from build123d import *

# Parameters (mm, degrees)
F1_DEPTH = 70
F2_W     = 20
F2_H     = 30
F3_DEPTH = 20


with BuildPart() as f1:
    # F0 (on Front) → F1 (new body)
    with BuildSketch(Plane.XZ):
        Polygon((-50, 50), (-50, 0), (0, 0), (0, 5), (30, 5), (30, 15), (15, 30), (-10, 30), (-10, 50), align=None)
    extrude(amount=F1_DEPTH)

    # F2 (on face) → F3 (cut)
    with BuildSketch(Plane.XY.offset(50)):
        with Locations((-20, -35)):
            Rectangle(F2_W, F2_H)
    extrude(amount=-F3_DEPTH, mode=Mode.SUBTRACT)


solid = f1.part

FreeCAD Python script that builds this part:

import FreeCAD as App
import Part
import Sketcher

V = App.Vector
Q = App.Units.Quantity

doc = App.newDocument("Part")
params = doc.addObject("Spreadsheet::Sheet", "Params")
for row, (alias, value) in enumerate([
    ("sketch1_width", "50 mm"),
    ("sketch1_width2", "30 mm"),
    ("sketch1_width3", "25 mm"),
    ("sketch1_width4", "40 mm"),
    ("sketch1_height", "5 mm"),
    ("pad1_length", "70 mm"),
    ("sketch2_width", "20 mm"),
    ("sketch2_height", "30 mm"),
    ("pocket1_length", "20 mm"),
], start=1):
    params.set(f"A{row}", alias)
    params.set(f"B{row}", "=" + value)
    params.setAlias(f"B{row}", alias)

body = doc.addObject("PartDesign::Body", "Body")

# Sketch on XZ plane
sketch1 = doc.addObject("Sketcher::SketchObject", "Sketch")
body.addObject(sketch1)
sketch1.AttachmentSupport = (doc.XZ_Plane, [""])
sketch1.MapMode = "FlatFace"
sketch1.addGeometry([
    Part.LineSegment(V(-50, 50, 0), V(-50, 0, 0)),  # 0
    Part.LineSegment(V(-50, 0, 0), V(0, 0, 0)),  # 1
    Part.LineSegment(V(0, 0, 0), V(0, 5, 0)),  # 2
    Part.LineSegment(V(0, 5, 0), V(30, 5, 0)),  # 3
    Part.LineSegment(V(30, 5, 0), V(30, 15, 0)),  # 4
    Part.LineSegment(V(30, 15, 0), V(15, 30, 0)),  # 5
    Part.LineSegment(V(15, 30, 0), V(-10, 30, 0)),  # 6
    Part.LineSegment(V(-10, 30, 0), V(-10, 50, 0)),  # 7
    Part.LineSegment(V(-10, 50, 0), V(-50, 50, 0)),  # 8
], False)
sketch1.addConstraint([
    Sketcher.Constraint("Coincident", 0, 2, 1, 1),
    Sketcher.Constraint("Coincident", 1, 2, 2, 1),
    Sketcher.Constraint("Coincident", 2, 2, 3, 1),
    Sketcher.Constraint("Coincident", 3, 2, 4, 1),
    Sketcher.Constraint("Coincident", 4, 2, 5, 1),
    Sketcher.Constraint("Coincident", 5, 2, 6, 1),
    Sketcher.Constraint("Coincident", 6, 2, 7, 1),
    Sketcher.Constraint("Coincident", 7, 2, 8, 1),
    Sketcher.Constraint("Coincident", 8, 2, 0, 1),
    Sketcher.Constraint("Vertical", 0),
    Sketcher.Constraint("Horizontal", 1),
    Sketcher.Constraint("Vertical", 2),
    Sketcher.Constraint("Horizontal", 3),
    Sketcher.Constraint("Vertical", 4),
    Sketcher.Constraint("Horizontal", 6),
    Sketcher.Constraint("Vertical", 7),
    Sketcher.Constraint("Horizontal", 8),
    Sketcher.Constraint("Coincident", 1, 2, -1, 1),
    Sketcher.Constraint("Equal", 1, 0),
    Sketcher.Constraint("DistanceX", 1, 1, 1, 2, Q("50 mm")),
    Sketcher.Constraint("DistanceX", 3, 1, 3, 2, Q("30 mm")),
    Sketcher.Constraint("DistanceX", 6, 2, 6, 1, Q("25 mm")),
    Sketcher.Constraint("DistanceX", 8, 2, 8, 1, Q("40 mm")),
    Sketcher.Constraint("DistanceY", 2, 1, 2, 2, Q("5 mm")),
    Sketcher.Constraint("DistanceY", 4, 1, 4, 2, Q("10 mm")),
    Sketcher.Constraint("DistanceY", 7, 1, 7, 2, Q("20 mm")),
])
sketch1.setExpression("Constraints[19]", "Params.sketch1_width")
sketch1.setExpression("Constraints[20]", "Params.sketch1_width2")
sketch1.setExpression("Constraints[21]", "Params.sketch1_width3")
sketch1.setExpression("Constraints[22]", "Params.sketch1_width4")
sketch1.setExpression("Constraints[23]", "Params.sketch1_height")
pad1 = doc.addObject("PartDesign::Pad", "Pad")
body.addObject(pad1)
pad1.Profile = sketch1
pad1.setExpression("Length", "Params.pad1_length")

# Sketch on XY plane
sketch2 = doc.addObject("Sketcher::SketchObject", "Sketch001")
body.addObject(sketch2)
sketch2.AttachmentSupport = (doc.XY_Plane, [""])
sketch2.MapMode = "FlatFace"
sketch2.AttachmentOffset = App.Placement(V(0, 0, 50), App.Rotation())
sketch2.addGeometry([
    Part.LineSegment(V(-30, -20, 0), V(-30, -50, 0)),
    Part.LineSegment(V(-30, -50, 0), V(-10, -50, 0)),
    Part.LineSegment(V(-10, -50, 0), V(-10, -20, 0)),
    Part.LineSegment(V(-10, -20, 0), V(-30, -20, 0)),
], False)
sketch2.addConstraint([
    Sketcher.Constraint("Coincident", 0, 2, 1, 1),
    Sketcher.Constraint("Coincident", 1, 2, 2, 1),
    Sketcher.Constraint("Coincident", 2, 2, 3, 1),
    Sketcher.Constraint("Coincident", 3, 2, 0, 1),
    Sketcher.Constraint("Vertical", 0),
    Sketcher.Constraint("Horizontal", 1),
    Sketcher.Constraint("Vertical", 2),
    Sketcher.Constraint("Horizontal", 3),
    Sketcher.Constraint("DistanceX", 1, 1, 1, 2, Q("20 mm")),
    Sketcher.Constraint("DistanceY", 0, 2, 0, 1, Q("30 mm")),
    Sketcher.Constraint("DistanceX", 0, 2, -1, 1, Q("30 mm")),
    Sketcher.Constraint("DistanceY", 0, 2, -1, 1, Q("50 mm")),
])
sketch2.setExpression("Constraints[8]", "Params.sketch2_width")
sketch2.setExpression("Constraints[9]", "Params.sketch2_height")
pocket1 = doc.addObject("PartDesign::Pocket", "Pocket")
body.addObject(pocket1)
pocket1.Profile = sketch2
pocket1.setExpression("Length", "Params.pocket1_length")

doc.recompute()
